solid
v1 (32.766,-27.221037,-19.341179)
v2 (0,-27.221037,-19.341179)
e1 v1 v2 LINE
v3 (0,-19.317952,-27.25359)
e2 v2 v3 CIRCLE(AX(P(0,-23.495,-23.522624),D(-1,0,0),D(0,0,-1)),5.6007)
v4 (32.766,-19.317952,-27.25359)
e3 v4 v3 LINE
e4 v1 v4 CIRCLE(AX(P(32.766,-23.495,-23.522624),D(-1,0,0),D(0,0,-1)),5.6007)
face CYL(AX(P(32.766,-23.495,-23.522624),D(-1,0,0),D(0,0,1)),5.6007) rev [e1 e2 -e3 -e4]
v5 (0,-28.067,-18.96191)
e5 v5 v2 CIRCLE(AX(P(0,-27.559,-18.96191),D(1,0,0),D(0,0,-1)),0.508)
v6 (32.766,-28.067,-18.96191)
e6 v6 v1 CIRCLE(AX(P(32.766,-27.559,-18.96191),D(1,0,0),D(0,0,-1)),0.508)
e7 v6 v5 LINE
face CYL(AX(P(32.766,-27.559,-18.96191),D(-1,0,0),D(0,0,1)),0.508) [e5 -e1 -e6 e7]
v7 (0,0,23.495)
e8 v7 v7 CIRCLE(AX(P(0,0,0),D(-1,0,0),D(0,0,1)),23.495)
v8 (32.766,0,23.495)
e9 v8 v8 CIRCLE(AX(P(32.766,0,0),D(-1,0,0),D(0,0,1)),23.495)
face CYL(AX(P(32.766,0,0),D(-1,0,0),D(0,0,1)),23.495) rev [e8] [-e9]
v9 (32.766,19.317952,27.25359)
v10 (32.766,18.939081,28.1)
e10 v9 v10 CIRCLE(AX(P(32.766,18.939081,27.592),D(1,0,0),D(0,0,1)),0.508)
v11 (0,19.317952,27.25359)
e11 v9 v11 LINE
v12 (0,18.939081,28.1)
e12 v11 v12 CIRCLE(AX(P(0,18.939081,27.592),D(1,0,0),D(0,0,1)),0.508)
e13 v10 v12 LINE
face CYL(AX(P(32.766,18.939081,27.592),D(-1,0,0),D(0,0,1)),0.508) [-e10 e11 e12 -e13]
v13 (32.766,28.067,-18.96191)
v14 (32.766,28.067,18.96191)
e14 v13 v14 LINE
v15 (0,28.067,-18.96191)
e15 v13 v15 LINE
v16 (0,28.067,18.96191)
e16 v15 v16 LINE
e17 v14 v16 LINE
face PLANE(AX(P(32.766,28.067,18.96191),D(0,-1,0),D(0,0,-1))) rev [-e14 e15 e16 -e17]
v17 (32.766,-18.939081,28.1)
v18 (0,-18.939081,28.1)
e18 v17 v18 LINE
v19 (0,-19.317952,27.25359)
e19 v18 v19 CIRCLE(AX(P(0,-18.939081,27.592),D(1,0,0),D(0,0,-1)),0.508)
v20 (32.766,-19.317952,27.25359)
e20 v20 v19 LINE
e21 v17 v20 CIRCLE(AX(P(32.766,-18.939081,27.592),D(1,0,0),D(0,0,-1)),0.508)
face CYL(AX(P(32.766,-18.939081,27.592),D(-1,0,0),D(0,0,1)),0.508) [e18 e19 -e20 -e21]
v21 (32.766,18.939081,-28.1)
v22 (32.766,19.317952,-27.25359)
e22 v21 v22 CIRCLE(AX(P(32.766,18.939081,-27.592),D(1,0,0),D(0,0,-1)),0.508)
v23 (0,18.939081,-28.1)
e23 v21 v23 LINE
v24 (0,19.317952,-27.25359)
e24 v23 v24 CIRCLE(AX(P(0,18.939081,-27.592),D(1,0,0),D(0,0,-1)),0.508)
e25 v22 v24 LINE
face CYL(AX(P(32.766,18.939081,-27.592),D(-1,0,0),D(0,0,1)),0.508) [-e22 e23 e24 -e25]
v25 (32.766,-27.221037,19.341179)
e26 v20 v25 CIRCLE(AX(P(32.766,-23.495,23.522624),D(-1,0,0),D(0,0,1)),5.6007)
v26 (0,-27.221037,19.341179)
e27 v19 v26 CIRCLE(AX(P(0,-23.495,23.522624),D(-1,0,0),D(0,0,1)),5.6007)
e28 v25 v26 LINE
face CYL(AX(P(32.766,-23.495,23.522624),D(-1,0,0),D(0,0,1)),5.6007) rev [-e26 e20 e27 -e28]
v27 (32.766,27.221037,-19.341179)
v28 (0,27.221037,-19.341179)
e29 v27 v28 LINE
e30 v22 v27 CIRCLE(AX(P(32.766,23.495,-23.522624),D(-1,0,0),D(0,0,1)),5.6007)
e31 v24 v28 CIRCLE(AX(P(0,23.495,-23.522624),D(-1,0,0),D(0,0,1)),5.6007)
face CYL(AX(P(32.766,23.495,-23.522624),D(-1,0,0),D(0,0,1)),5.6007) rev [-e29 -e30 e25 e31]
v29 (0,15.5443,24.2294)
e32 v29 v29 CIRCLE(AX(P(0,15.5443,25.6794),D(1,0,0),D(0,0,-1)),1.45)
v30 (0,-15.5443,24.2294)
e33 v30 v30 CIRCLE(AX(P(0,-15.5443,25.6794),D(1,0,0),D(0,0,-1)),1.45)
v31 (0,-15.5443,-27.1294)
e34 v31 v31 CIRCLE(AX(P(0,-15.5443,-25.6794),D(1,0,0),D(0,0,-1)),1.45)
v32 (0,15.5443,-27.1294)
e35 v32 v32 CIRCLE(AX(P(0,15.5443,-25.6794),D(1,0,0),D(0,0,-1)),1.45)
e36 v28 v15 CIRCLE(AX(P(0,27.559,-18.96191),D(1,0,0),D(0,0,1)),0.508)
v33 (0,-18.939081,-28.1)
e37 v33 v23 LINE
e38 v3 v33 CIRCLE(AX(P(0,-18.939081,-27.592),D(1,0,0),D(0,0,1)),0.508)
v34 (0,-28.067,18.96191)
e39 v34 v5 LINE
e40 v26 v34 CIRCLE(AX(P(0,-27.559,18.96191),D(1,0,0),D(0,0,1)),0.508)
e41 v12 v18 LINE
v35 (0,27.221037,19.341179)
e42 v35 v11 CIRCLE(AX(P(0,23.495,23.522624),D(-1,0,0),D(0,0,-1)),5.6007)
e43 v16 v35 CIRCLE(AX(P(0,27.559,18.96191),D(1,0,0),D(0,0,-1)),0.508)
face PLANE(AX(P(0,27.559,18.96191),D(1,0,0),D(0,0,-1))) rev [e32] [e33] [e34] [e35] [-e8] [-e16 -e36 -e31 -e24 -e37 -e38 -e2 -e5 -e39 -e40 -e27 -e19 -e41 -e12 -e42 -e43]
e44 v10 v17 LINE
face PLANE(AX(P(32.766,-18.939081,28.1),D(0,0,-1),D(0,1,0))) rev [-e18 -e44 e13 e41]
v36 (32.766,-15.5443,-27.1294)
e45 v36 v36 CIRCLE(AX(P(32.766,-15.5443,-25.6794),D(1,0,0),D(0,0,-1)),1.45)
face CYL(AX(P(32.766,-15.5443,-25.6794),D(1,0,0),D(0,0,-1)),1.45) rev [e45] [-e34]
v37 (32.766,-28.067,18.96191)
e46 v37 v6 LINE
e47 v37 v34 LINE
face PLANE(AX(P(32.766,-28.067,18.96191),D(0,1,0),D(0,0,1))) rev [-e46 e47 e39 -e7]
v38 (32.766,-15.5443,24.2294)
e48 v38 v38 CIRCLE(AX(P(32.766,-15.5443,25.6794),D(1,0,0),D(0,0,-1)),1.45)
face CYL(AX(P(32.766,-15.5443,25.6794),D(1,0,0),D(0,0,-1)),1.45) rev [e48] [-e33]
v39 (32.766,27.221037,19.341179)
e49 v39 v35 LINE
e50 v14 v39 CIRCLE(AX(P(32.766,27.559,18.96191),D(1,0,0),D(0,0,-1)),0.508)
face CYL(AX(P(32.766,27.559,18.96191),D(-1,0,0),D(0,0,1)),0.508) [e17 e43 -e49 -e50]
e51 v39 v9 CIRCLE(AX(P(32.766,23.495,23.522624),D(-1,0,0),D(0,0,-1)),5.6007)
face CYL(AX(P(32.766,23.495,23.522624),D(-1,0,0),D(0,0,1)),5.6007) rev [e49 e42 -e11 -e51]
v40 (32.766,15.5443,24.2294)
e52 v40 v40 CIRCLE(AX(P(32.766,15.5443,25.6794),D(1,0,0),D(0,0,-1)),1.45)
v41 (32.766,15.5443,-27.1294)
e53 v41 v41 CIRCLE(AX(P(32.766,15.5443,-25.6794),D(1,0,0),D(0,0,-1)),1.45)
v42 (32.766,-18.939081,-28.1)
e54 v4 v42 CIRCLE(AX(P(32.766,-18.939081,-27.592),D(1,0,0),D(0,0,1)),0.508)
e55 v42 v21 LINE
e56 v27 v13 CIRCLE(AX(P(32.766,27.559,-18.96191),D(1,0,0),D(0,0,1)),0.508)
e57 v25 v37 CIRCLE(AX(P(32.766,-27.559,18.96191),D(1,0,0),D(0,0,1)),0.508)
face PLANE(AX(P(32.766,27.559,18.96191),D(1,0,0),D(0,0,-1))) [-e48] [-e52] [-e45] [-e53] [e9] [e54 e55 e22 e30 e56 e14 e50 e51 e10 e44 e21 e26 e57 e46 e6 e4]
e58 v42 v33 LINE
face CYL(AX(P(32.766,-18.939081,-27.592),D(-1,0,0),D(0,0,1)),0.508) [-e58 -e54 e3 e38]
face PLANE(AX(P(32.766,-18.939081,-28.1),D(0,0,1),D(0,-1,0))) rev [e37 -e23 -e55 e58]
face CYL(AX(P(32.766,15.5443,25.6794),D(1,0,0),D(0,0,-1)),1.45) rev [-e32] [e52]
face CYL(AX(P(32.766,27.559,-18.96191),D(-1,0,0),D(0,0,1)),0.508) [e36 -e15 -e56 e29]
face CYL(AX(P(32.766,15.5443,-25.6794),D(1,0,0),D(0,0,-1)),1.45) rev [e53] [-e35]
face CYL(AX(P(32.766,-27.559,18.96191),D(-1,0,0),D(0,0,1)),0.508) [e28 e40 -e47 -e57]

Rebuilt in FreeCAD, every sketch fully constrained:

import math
import FreeCAD as App
import Part
import Sketcher
Q = App.Units.Quantity

doc = App.newDocument("Part")
body = doc.addObject("PartDesign::Body", "Body")

# Sketch on YZ plane
sketch1 = doc.addObject("Sketcher::SketchObject", "Sketch")
body.addObject(sketch1)
sketch1.AttachmentSupport = (doc.YZ_Plane, [""])
sketch1.MapMode = "FlatFace"
sketch1.addGeometry(Part.LineSegment(App.Vector(-18.9, -28.1, 0), App.Vector(18.9, -28.1, 0)), False)
sketch1.addGeometry(Part.ArcOfCircle(Part.Circle(App.Vector(18.9, -27.6, 0), App.Vector(0, 0, 1), 0.5), math.radians(-90), math.radians(42)), False)
sketch1.addGeometry(Part.ArcOfCircle(Part.Circle(App.Vector(23.5, -23.5, 0), App.Vector(0, 0, 1), 5.6), math.radians(48), math.radians(222)), False)
sketch1.addGeometry(Part.ArcOfCircle(Part.Circle(App.Vector(27.6, -19, 0), App.Vector(0, 0, 1), 0.5), math.radians(-132), math.radians(0)), False)
sketch1.addGeometry(Part.LineSegment(App.Vector(28.1, -19, 0), App.Vector(28.1, 19, 0)), False)
sketch1.addGeometry(Part.ArcOfCircle(Part.Circle(App.Vector(27.6, 19, 0), App.Vector(0, 0, 1), 0.5), math.radians(0), math.radians(132)), False)
sketch1.addGeometry(Part.ArcOfCircle(Part.Circle(App.Vector(23.5, 23.5, 0), App.Vector(0, 0, 1), 5.6), math.radians(138), math.radians(312)), False)
sketch1.addGeometry(Part.ArcOfCircle(Part.Circle(App.Vector(18.9, 27.6, 0), App.Vector(0, 0, 1), 0.5), math.radians(-42), math.radians(90)), False)
sketch1.addGeometry(Part.LineSegment(App.Vector(18.9, 28.1, 0), App.Vector(-18.9, 28.1, 0)), False)
sketch1.addGeometry(Part.ArcOfCircle(Part.Circle(App.Vector(-18.9, 27.6, 0), App.Vector(0, 0, 1), 0.5), math.radians(90), math.radians(222)), False)
sketch1.addGeometry(Part.ArcOfCircle(Part.Circle(App.Vector(-23.5, 23.5, 0), App.Vector(0, 0, 1), 5.6), math.radians(-132), math.radians(42)), False)
sketch1.addGeometry(Part.ArcOfCircle(Part.Circle(App.Vector(-27.6, 19, 0), App.Vector(0, 0, 1), 0.5), math.radians(48), math.radians(180)), False)
sketch1.addGeometry(Part.LineSegment(App.Vector(-28.1, 19, 0), App.Vector(-28.1, -19, 0)), False)
sketch1.addGeometry(Part.ArcOfCircle(Part.Circle(App.Vector(-27.6, -19, 0), App.Vector(0, 0, 1), 0.5), math.radians(180), math.radians(312)), False)
sketch1.addGeometry(Part.ArcOfCircle(Part.Circle(App.Vector(-23.5, -23.5, 0), App.Vector(0, 0, 1), 5.6), math.radians(-42), math.radians(132)), False)
sketch1.addGeometry(Part.ArcOfCircle(Part.Circle(App.Vector(-18.9, -27.6, 0), App.Vector(0, 0, 1), 0.5), math.radians(138), math.radians(270)), False)
sketch1.addConstraint(Sketcher.Constraint("Tangent", 0, 2, 1, 1))
sketch1.addConstraint(Sketcher.Constraint("Tangent", 1, 2, 2, 2))
sketch1.addConstraint(Sketcher.Constraint("Tangent", 2, 1, 3, 1))
sketch1.addConstraint(Sketcher.Constraint("Tangent", 3, 2, 4, 1))
sketch1.addConstraint(Sketcher.Constraint("Tangent", 4, 2, 5, 1))
sketch1.addConstraint(Sketcher.Constraint("Tangent", 5, 2, 6, 2))
sketch1.addConstraint(Sketcher.Constraint("Tangent", 6, 1, 7, 1))
sketch1.addConstraint(Sketcher.Constraint("Tangent", 7, 2, 8, 1))
sketch1.addConstraint(Sketcher.Constraint("Tangent", 8, 2, 9, 1))
sketch1.addConstraint(Sketcher.Constraint("Tangent", 9, 2, 10, 2))
sketch1.addConstraint(Sketcher.Constraint("Tangent", 10, 1, 11, 1))
sketch1.addConstraint(Sketcher.Constraint("Tangent", 11, 2, 12, 1))
sketch1.addConstraint(Sketcher.Constraint("Tangent", 12, 2, 13, 1))
sketch1.addConstraint(Sketcher.Constraint("Tangent", 13, 2, 14, 2))
sketch1.addConstraint(Sketcher.Constraint("Tangent", 14, 1, 15, 1))
sketch1.addConstraint(Sketcher.Constraint("Tangent", 15, 2, 0, 1))
sketch1.addConstraint(Sketcher.Constraint("Horizontal", 0))
sketch1.addConstraint(Sketcher.Constraint("Vertical", 4))
sketch1.addConstraint(Sketcher.Constraint("Horizontal", 8))
sketch1.addConstraint(Sketcher.Constraint("Vertical", 12))
sketch1.addConstraint(Sketcher.Constraint("Equal", 1, 3))
sketch1.addConstraint(Sketcher.Constraint("Equal", 3, 5))
sketch1.addConstraint(Sketcher.Constraint("Equal", 2, 6))
sketch1.addConstraint(Sketcher.Constraint("Equal", 5, 7))
sketch1.addConstraint(Sketcher.Constraint("Equal", 7, 9))
sketch1.addConstraint(Sketcher.Constraint("Equal", 6, 10))
sketch1.addConstraint(Sketcher.Constraint("Equal", 9, 11))
sketch1.addConstraint(Sketcher.Constraint("Equal", 11, 13))
sketch1.addConstraint(Sketcher.Constraint("Equal", 10, 14))
sketch1.addConstraint(Sketcher.Constraint("Equal", 13, 15))
sketch1.addConstraint(Sketcher.Constraint("Symmetric", 1, 3, 9, 3, -1, 1))
sketch1.addConstraint(Sketcher.Constraint("Symmetric", 3, 3, 11, 3, -1, 1))
sketch1.addConstraint(Sketcher.Constraint("Symmetric", 6, 3, 14, 3, -1, 1))
sketch1.addConstraint(Sketcher.Constraint("Symmetric", 6, 3, 10, 3, -2))
sketch1.addConstraint(Sketcher.Constraint("Radius", 1, Q("0.02 in")))
sketch1.addConstraint(Sketcher.Constraint("Radius", 2, Q("0.2205 in")))
sketch1.addConstraint(Sketcher.Constraint("DistanceX", 2, 3, 3, 3, Q("0.16 in")))
sketch1.addConstraint(Sketcher.Constraint("DistanceX", 10, 3, 6, 3, Q("1.85 in")))
sketch1.addConstraint(Sketcher.Constraint("DistanceX", 0, 1, 0, 2, 37.878162))
sketch1.addConstraint(Sketcher.Constraint("DistanceY", 4, 1, 4, 2, 37.923819))
pad1 = doc.addObject("PartDesign::Pad", "Pad")
body.addObject(pad1)
pad1.Profile = sketch1
pad1.Length = Q("1.29 in")

# Sketch on YZ plane
sketch2 = doc.addObject("Sketcher::SketchObject", "Sketch001")
body.addObject(sketch2)
sketch2.AttachmentSupport = (doc.YZ_Plane, [""])
sketch2.MapMode = "FlatFace"
sketch2.addGeometry(Part.Circle(App.Vector(0, 0, 0), App.Vector(0, 0, 1), 23), False)
sketch2.addConstraint(Sketcher.Constraint("Coincident", 0, 3, -1, 1))
sketch2.addConstraint(Sketcher.Constraint("Diameter", 0, Q("1.85 in")))
pocket1 = doc.addObject("PartDesign::Pocket", "Pocket")
body.addObject(pocket1)
pocket1.Profile = sketch2
pocket1.Type = "ThroughAll"
pocket1.Reversed = True

# Sketch on YZ plane
sketch3 = doc.addObject("Sketcher::SketchObject", "Sketch002")
body.addObject(sketch3)
sketch3.AttachmentSupport = (doc.YZ_Plane, [""])
sketch3.MapMode = "FlatFace"
sketch3.AttachmentOffset = App.Placement(App.Vector(0, 0, 1.29 * 25.4), App.Rotation())
sketch3.addGeometry(Part.Circle(App.Vector(15.5, -25.7, 0), App.Vector(0, 0, 1), 1.4), False)
sketch3.addGeometry(Part.Circle(App.Vector(-15.5, -25.7, 0), App.Vector(0, 0, 1), 1.4), False)
sketch3.addGeometry(Part.Circle(App.Vector(15.5, 25.7, 0), App.Vector(0, 0, 1), 1.4), False)
sketch3.addGeometry(Part.Circle(App.Vector(-15.5, 25.7, 0), App.Vector(0, 0, 1), 1.4), False)
sketch3.addConstraint(Sketcher.Constraint("Equal", 0, 1))
sketch3.addConstraint(Sketcher.Constraint("Equal", 1, 2))
sketch3.addConstraint(Sketcher.Constraint("Equal", 2, 3))
sketch3.addConstraint(Sketcher.Constraint("Symmetric", 1, 3, 2, 3, -1, 1))
sketch3.addConstraint(Sketcher.Constraint("Symmetric", 0, 3, 3, 3, -1, 1))
sketch3.addConstraint(Sketcher.Constraint("Symmetric", 0, 3, 1, 3, -2))
sketch3.addConstraint(Sketcher.Constraint("Diameter", 0, 2.9))
sketch3.addConstraint(Sketcher.Constraint("DistanceY", 0, 3, -1, 1, Q("1.011 in")))
sketch3.addConstraint(Sketcher.Constraint("DistanceX", -1, 1, 0, 3, 15.5443))
doc.recompute()
hole = doc.addObject("PartDesign::Hole", "Hole")
body.addObject(hole)
hole.Profile = sketch3
hole.ThreadType = "None"
hole.Diameter = 2.9
hole.DepthType = "ThroughAll"

doc.recompute()
